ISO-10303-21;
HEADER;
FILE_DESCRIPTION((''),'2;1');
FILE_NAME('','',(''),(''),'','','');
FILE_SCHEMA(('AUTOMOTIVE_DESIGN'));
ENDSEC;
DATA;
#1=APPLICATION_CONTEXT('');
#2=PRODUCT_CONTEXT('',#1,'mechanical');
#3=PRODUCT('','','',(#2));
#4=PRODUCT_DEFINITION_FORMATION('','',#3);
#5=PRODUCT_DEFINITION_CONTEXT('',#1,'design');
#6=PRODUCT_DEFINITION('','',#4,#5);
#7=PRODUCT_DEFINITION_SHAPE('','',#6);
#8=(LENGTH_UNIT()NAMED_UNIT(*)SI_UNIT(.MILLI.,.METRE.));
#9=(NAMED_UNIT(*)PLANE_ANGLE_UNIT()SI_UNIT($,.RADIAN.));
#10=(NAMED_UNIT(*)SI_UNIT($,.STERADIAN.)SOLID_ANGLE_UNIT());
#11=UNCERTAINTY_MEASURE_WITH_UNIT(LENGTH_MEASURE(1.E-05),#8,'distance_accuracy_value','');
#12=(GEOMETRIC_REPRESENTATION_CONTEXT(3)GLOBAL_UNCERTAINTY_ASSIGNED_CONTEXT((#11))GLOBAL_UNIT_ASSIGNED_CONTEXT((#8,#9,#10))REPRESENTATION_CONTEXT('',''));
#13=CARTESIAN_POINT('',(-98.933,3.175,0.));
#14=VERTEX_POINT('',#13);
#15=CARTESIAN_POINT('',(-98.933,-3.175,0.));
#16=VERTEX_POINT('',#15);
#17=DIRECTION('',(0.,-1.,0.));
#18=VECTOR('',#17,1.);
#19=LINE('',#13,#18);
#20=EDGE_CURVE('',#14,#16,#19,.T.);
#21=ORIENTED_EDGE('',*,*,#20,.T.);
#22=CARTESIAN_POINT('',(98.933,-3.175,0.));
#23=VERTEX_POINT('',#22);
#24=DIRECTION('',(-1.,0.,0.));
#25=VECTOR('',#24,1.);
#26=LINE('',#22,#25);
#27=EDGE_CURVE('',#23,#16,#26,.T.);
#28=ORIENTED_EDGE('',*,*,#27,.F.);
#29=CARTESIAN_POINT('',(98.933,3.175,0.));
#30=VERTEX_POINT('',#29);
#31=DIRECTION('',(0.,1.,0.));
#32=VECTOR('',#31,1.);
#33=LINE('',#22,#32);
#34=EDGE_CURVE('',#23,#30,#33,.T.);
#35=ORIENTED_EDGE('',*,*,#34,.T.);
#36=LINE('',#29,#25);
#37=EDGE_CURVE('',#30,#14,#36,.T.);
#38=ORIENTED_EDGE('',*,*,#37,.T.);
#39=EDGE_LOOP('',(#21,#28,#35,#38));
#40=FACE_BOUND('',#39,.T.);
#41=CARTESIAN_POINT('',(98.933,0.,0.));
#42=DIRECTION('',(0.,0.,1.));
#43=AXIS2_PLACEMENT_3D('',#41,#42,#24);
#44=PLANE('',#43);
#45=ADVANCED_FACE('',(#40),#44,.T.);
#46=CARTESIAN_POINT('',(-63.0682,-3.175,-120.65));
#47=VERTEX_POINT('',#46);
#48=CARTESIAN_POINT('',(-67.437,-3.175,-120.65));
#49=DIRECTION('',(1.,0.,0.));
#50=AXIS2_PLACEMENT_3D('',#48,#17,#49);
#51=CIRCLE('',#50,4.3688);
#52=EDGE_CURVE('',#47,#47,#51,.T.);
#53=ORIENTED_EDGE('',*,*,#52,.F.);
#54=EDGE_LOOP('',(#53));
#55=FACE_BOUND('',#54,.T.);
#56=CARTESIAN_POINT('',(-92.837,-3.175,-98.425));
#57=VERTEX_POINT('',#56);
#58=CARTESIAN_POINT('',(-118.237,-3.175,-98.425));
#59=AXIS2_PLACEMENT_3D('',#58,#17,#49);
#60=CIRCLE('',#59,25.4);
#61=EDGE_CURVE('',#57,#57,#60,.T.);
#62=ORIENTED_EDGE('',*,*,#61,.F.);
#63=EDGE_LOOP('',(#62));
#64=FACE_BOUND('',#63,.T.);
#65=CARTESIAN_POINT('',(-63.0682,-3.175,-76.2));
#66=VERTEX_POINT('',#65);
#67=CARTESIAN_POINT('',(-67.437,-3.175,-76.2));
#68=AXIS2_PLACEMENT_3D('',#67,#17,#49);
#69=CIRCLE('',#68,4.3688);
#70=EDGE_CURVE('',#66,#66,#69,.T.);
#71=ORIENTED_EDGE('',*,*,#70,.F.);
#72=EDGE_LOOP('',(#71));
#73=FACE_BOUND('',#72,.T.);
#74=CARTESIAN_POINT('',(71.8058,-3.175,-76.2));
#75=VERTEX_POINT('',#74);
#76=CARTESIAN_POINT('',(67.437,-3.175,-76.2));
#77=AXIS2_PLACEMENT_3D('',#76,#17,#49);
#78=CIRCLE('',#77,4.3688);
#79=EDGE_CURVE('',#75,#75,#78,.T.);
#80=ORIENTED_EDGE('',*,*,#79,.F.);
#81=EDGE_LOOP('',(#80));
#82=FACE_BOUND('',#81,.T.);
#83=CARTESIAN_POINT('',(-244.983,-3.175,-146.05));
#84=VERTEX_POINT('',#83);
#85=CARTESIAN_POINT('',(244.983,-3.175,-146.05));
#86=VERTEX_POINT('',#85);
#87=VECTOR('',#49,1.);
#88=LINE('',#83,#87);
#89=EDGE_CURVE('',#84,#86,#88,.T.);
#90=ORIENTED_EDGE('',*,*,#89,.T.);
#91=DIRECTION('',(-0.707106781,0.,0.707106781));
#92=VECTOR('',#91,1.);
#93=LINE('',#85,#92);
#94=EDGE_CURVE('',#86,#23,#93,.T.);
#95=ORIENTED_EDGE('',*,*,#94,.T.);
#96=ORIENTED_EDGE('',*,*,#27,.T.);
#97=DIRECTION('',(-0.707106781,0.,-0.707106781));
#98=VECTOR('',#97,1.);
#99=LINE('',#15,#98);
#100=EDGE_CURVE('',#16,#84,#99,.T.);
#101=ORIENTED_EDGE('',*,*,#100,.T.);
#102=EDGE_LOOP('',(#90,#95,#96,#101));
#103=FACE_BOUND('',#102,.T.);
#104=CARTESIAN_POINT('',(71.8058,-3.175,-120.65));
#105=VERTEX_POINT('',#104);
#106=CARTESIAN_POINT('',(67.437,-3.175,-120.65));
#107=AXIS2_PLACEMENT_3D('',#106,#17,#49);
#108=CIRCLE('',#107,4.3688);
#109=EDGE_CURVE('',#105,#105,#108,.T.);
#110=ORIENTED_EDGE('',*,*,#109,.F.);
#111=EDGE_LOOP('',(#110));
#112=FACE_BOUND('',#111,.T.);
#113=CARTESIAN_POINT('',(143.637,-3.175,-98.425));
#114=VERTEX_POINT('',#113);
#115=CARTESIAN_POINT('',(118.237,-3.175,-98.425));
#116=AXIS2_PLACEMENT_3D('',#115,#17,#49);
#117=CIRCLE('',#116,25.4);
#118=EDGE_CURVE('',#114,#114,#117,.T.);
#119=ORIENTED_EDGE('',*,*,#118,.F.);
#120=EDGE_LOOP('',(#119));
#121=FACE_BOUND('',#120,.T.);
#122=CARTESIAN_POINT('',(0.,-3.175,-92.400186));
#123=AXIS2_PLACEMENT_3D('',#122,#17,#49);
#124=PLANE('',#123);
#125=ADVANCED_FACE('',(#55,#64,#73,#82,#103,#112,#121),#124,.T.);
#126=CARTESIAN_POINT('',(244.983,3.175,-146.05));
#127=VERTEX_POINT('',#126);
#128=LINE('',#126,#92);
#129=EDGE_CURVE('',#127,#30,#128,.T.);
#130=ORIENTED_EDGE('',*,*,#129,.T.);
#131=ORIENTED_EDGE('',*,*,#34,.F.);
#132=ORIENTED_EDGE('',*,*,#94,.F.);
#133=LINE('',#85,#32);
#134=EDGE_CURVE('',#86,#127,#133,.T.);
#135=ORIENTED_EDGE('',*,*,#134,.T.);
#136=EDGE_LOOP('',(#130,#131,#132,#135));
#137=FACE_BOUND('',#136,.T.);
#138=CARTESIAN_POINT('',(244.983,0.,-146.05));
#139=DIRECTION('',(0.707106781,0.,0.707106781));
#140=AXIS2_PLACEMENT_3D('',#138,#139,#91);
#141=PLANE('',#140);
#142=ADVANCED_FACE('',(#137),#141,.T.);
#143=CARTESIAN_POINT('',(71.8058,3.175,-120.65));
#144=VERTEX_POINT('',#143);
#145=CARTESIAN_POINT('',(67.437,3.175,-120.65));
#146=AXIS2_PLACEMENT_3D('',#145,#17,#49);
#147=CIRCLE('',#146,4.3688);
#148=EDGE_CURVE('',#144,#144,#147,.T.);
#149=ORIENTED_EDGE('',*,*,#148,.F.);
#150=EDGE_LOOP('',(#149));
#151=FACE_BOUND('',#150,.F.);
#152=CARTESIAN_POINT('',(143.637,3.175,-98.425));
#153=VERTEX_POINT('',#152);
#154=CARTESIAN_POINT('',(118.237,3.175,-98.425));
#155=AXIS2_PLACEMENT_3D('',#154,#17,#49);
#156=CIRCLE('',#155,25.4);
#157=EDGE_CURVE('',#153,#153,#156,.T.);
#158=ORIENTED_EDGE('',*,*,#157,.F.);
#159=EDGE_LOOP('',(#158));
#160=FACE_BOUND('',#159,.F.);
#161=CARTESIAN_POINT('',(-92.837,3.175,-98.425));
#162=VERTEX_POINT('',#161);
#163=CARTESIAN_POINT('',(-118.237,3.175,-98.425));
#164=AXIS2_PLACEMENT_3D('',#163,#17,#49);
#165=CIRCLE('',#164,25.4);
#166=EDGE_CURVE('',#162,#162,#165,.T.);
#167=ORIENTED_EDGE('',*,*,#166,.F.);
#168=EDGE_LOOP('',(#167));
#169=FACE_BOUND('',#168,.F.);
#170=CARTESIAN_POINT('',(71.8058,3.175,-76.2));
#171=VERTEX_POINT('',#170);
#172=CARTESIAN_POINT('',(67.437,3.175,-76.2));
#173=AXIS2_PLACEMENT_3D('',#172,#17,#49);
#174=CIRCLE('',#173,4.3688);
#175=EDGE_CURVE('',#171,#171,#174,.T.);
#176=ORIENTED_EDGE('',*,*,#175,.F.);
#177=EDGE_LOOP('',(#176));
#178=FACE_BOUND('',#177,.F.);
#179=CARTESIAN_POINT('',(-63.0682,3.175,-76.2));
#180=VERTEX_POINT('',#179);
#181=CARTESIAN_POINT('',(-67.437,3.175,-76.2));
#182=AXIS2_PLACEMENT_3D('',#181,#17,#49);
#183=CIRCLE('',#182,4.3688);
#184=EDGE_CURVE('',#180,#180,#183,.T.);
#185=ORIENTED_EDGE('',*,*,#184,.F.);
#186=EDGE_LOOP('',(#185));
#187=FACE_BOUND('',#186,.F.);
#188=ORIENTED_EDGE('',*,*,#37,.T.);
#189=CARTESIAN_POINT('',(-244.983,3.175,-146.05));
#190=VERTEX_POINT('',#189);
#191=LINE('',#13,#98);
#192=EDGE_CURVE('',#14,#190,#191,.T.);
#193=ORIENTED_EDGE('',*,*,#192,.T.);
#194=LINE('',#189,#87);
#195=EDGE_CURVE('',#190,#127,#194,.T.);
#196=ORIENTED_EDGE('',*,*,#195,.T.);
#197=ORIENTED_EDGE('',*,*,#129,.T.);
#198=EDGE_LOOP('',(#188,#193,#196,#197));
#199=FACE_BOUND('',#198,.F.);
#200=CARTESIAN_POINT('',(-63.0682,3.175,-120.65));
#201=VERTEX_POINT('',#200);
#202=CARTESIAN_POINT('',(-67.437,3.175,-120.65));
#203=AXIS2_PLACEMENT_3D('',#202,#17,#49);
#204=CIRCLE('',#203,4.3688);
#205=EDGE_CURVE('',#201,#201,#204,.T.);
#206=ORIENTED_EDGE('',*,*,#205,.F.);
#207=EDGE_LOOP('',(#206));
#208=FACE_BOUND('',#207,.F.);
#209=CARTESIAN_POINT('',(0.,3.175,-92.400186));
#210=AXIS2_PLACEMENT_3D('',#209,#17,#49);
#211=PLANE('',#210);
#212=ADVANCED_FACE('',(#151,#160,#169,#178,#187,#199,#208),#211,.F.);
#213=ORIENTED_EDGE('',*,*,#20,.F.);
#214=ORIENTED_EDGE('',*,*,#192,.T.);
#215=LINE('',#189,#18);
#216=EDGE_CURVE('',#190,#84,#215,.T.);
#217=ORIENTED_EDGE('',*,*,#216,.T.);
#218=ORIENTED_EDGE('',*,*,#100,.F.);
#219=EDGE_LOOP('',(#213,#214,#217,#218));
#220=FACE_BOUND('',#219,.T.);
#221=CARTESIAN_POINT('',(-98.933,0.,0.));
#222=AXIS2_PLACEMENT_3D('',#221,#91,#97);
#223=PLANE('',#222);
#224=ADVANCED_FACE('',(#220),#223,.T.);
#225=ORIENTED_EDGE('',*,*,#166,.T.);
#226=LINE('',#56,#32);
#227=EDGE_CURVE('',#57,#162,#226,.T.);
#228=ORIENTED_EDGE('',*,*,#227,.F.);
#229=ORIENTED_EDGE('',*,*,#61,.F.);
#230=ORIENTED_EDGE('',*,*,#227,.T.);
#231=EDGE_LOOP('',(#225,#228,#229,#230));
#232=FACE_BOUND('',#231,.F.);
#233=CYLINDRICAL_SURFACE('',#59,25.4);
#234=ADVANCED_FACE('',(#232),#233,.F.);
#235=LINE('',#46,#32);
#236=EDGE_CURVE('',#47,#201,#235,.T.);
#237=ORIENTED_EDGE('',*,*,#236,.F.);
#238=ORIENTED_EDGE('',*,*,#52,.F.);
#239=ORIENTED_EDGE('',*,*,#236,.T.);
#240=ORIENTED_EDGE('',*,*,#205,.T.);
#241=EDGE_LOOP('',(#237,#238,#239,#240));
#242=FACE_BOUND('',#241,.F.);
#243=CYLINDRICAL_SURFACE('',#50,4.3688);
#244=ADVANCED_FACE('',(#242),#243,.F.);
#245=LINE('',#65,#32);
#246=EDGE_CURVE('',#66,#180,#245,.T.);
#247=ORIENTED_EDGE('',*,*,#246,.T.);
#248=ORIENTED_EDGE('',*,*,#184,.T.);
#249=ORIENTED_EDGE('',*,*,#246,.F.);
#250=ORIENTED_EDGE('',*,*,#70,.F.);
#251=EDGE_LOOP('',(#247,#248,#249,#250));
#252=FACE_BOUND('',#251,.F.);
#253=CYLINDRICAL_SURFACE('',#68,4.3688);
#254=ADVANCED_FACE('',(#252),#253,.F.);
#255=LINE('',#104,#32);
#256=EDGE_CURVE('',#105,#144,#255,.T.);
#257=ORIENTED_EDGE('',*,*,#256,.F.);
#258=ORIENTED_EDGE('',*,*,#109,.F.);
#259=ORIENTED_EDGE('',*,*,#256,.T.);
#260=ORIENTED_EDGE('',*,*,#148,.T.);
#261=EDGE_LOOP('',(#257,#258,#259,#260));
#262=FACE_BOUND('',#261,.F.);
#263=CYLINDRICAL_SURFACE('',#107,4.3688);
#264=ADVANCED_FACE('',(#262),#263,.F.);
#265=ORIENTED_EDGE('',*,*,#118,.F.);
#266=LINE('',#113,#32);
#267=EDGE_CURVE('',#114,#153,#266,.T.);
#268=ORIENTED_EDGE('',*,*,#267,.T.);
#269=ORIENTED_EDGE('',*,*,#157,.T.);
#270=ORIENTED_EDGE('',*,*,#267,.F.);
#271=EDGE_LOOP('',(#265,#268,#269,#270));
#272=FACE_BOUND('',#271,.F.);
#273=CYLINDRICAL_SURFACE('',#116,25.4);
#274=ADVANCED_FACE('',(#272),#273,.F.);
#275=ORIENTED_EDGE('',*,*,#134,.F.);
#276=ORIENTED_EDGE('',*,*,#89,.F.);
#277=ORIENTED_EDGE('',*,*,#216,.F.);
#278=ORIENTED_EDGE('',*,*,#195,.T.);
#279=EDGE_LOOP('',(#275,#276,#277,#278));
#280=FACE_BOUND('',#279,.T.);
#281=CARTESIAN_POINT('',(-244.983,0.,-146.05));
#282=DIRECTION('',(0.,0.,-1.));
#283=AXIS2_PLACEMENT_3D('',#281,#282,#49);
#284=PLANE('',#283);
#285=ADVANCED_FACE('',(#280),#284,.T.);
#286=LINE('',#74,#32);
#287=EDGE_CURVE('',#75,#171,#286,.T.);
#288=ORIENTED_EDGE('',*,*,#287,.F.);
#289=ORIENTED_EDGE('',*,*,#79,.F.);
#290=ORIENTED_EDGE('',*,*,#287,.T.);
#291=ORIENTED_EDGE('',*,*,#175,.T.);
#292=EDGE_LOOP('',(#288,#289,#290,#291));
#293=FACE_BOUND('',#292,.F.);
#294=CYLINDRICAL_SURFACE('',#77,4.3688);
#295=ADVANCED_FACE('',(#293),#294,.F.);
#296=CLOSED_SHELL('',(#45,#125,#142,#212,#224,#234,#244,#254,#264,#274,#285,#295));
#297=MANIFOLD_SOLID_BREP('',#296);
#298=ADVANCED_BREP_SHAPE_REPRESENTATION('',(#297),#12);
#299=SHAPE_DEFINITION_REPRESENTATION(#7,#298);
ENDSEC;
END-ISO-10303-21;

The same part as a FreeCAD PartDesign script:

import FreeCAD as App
import Part
import Sketcher
Q = App.Units.Quantity

doc = App.newDocument("Part")
body = doc.addObject("PartDesign::Body", "Body")

# Sketch on XZ plane
sketch1 = body.newObject("Sketcher::SketchObject", "Sketch")
sketch1.AttachmentSupport = (doc.getObject("XZ_Plane"), [""])
sketch1.MapMode = "FlatFace"
sketch1.addGeometry([
    Part.LineSegment(App.Vector(98.933, 0, 0), App.Vector(-98.933, 0, 0)),
    Part.LineSegment(App.Vector(-98.933, 0, 0), App.Vector(-244.983, -146.05, 0)),
    Part.LineSegment(App.Vector(-244.983, -146.05, 0), App.Vector(244.983, -146.05, 0)),
    Part.LineSegment(App.Vector(244.983, -146.05, 0), App.Vector(98.933, 0, 0)),
], False)
sketch1.addConstraint([
    Sketcher.Constraint("Coincident", 0, 2, 1, 1),
    Sketcher.Constraint("Coincident", 1, 2, 2, 1),
    Sketcher.Constraint("Coincident", 2, 2, 3, 1),
    Sketcher.Constraint("Coincident", 3, 2, 0, 1),
    Sketcher.Constraint("Horizontal", 0),
    Sketcher.Constraint("Horizontal", 2),
    Sketcher.Constraint("Symmetric", 0, 2, 3, 2, -1, 1),
    Sketcher.Constraint("Perpendicular", 1, 3),
    Sketcher.Constraint("Equal", 1, 3),
    Sketcher.Constraint("DistanceX", 0, 2, 0, 1, Q("7.79 in")),
    Sketcher.Constraint("DistanceX", 2, 1, 2, 2, Q("19.29 in")),
])
pad1 = body.newObject("PartDesign::Pad", "Pad")
pad1.Profile = sketch1
pad1.Length = Q("0.25 in")
pad1.Midplane = True

# Sketch on XZ plane
sketch2 = body.newObject("Sketcher::SketchObject", "Sketch001")
sketch2.AttachmentSupport = (doc.getObject("XZ_Plane"), [""])
sketch2.MapMode = "FlatFace"
sketch2.AttachmentOffset = App.Placement(App.Vector(0, 0, 0.125 * 25.4), App.Rotation())
sketch2.addGeometry([
    Part.Circle(App.Vector(67.437, -76.2, 0), App.Vector(0, 0, 1), 4.3688),  # 0
    Part.Circle(App.Vector(67.437, -120.65, 0), App.Vector(0, 0, 1), 4.3688),  # 1
    Part.Circle(App.Vector(-67.437, -76.2, 0), App.Vector(0, 0, 1), 4.3688),  # 2
    Part.Circle(App.Vector(-67.437, -120.65, 0), App.Vector(0, 0, 1), 4.3688),  # 3
    Part.Circle(App.Vector(-118.237, -98.425, 0), App.Vector(0, 0, 1), 25.4),  # 4
    Part.Circle(App.Vector(118.237, -98.425, 0), App.Vector(0, 0, 1), 25.4),  # 5
], False)
sketch2.addConstraint([
    Sketcher.Constraint("Equal", 0, 1),
    Sketcher.Constraint("Equal", 1, 2),
    Sketcher.Constraint("Equal", 2, 3),
    Sketcher.Constraint("Equal", 4, 5),
    Sketcher.Constraint("Symmetric", 0, 3, 2, 3, -2),
    Sketcher.Constraint("Symmetric", 1, 3, 3, 3, -2),
    Sketcher.Constraint("Symmetric", 4, 3, 5, 3, -2),
    Sketcher.Constraint("Vertical", 0, 3, 1, 3),
    Sketcher.Constraint("Diameter", 4, Q("2 in")),
    Sketcher.Constraint("Diameter", 0, Q("0.344 in")),
    Sketcher.Constraint("DistanceY", 0, 3, -1, 1, Q("3 in")),
    Sketcher.Constraint("DistanceX", 4, 3, 2, 3, Q("2 in")),
    Sketcher.Constraint("DistanceY", 1, 3, -1, 1, Q("4.75 in")),
    Sketcher.Constraint("DistanceX", 2, 3, 0, 3, Q("5.31 in")),
    Sketcher.Constraint("DistanceY", 4, 3, -1, 1, Q("3.875 in")),
])
pocket1 = body.newObject("PartDesign::Pocket", "Pocket")
pocket1.Profile = sketch2
pocket1.Type = "ThroughAll"

doc.recompute()
